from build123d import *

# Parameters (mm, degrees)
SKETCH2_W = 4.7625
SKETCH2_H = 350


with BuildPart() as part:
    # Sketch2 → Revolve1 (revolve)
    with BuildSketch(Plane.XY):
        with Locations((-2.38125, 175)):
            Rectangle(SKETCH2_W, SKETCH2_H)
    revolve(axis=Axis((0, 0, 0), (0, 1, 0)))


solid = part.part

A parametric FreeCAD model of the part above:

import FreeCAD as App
import Part
import Sketcher

V = App.Vector
Q = App.Units.Quantity

doc = App.newDocument("Part")
body = doc.addObject("PartDesign::Body", "Body")

# Sketch on XY plane
sketch1 = body.newObject("Sketcher::SketchObject", "Sketch")
sketch1.AttachmentSupport = (doc.getObject("XY_Plane"), [""])
sketch1.MapMode = "FlatFace"
sketch1.addGeometry([
    Part.LineSegment(V(-4.8, 350, 0), V(-4.8, 0, 0)),
    Part.LineSegment(V(-4.8, 0, 0), V(0, 0, 0)),
    Part.LineSegment(V(0, 0, 0), V(0, 350, 0)),
    Part.LineSegment(V(0, 350, 0), V(-4.8, 350, 0)),
], False)
sketch1.addConstraint([
    Sketcher.Constraint("Coincident", 0, 2, 1, 1),
    Sketcher.Constraint("Coincident", 1, 2, 2, 1),
    Sketcher.Constraint("Coincident", 2, 2, 3, 1),
    Sketcher.Constraint("Coincident", 3, 2, 0, 1),
    Sketcher.Constraint("Vertical", 0),
    Sketcher.Constraint("Horizontal", 1),
    Sketcher.Constraint("Vertical", 2),
    Sketcher.Constraint("Horizontal", 3),
    Sketcher.Constraint("Coincident", 1, 2, -1, 1),
    Sketcher.Constraint("DistanceY", 0, 2, 0, 1, Q("350 mm")),
    Sketcher.Constraint("DistanceX", 1, 1, 1, 2, Q("4.7625 mm")),
])
revolution = body.newObject("PartDesign::Revolution", "Revolution")
revolution.Profile = sketch1
revolution.ReferenceAxis = (sketch1, ["V_Axis"])
revolution.Angle = 360

doc.recompute()
